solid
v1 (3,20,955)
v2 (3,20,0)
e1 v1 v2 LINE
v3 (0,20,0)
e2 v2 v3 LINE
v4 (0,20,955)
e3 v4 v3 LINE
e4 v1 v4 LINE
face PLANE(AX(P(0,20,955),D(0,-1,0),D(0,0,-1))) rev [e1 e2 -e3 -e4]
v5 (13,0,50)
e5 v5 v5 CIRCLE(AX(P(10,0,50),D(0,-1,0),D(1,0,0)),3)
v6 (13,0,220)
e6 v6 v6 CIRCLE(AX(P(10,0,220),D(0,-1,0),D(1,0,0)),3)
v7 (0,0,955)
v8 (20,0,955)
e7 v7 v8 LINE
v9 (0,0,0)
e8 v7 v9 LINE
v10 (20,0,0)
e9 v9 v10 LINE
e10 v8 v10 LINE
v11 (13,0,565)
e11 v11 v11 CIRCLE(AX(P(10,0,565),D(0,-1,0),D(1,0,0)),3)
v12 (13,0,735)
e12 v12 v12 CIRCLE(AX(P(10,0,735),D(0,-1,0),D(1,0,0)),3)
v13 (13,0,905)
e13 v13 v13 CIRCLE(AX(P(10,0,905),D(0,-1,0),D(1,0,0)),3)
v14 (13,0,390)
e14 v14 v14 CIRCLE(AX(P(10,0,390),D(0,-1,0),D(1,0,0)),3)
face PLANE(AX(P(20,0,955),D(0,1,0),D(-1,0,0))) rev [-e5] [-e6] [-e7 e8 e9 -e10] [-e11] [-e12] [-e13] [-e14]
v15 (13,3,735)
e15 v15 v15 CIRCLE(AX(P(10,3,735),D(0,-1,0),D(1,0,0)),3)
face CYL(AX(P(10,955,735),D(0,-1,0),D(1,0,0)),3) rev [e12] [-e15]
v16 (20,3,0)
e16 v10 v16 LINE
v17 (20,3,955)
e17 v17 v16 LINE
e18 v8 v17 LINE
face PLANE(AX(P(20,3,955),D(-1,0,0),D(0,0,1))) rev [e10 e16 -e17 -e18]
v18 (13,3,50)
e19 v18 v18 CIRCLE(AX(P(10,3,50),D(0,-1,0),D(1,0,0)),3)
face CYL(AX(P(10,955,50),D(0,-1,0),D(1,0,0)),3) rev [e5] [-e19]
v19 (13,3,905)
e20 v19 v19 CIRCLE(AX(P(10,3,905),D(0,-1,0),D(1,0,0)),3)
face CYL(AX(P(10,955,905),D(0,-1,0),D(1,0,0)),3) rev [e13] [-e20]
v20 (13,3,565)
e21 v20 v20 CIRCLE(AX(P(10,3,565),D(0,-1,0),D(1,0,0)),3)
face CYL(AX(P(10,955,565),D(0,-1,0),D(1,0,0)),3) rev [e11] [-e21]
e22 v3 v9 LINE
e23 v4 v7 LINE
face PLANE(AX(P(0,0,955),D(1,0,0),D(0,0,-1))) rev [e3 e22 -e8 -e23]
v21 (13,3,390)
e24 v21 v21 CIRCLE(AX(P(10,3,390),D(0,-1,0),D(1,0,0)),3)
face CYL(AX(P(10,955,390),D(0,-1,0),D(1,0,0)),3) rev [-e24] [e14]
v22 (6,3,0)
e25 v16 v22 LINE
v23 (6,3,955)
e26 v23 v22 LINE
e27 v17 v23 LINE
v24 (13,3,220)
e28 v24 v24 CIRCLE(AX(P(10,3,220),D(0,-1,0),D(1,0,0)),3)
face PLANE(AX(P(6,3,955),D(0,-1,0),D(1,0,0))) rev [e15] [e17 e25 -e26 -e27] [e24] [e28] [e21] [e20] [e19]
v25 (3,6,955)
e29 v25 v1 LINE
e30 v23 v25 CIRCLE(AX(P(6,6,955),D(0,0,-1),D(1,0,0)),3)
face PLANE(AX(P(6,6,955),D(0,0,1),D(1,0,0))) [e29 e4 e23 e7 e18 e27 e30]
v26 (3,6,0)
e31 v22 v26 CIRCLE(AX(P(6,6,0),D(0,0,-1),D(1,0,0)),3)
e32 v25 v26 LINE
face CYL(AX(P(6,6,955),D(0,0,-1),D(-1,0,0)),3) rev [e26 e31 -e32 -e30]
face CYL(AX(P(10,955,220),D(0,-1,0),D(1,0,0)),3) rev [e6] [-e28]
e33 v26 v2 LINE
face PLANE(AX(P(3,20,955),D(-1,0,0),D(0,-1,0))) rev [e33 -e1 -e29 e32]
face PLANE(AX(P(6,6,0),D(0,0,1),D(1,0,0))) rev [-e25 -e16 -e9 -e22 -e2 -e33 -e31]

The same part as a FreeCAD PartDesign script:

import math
import FreeCAD as App
import Part
import Sketcher
Q = App.Units.Quantity

doc = App.newDocument("Part")
body = doc.addObject("PartDesign::Body", "Body")

sketch1 = body.newObject("Sketcher::SketchObject", "Sketch")
sketch1.AttachmentSupport = (doc.getObject("XY_Plane"), [""])
sketch1.MapMode = "FlatFace"
sketch1.addGeometry(Part.LineSegment(App.Vector(0, 20, 0), App.Vector(0, 0, 0)), False)
sketch1.addGeometry(Part.LineSegment(App.Vector(0, 0, 0), App.Vector(20, 0, 0)), False)
sketch1.addGeometry(Part.LineSegment(App.Vector(20, 0, 0), App.Vector(20, 3, 0)), False)
sketch1.addGeometry(Part.LineSegment(App.Vector(20, 3, 0), App.Vector(6, 3, 0)), False)
sketch1.addGeometry(Part.ArcOfCircle(Part.Circle(App.Vector(6, 6, 0), App.Vector(0, 0, 1), 3), math.radians(180), math.radians(270)), False)
sketch1.addGeometry(Part.LineSegment(App.Vector(3, 6, 0), App.Vector(3, 20, 0)), False)
sketch1.addGeometry(Part.LineSegment(App.Vector(3, 20, 0), App.Vector(0, 20, 0)), False)
sketch1.addConstraint(Sketcher.Constraint("Coincident", 0, 2, 1, 1))
sketch1.addConstraint(Sketcher.Constraint("Coincident", 1, 2, 2, 1))
sketch1.addConstraint(Sketcher.Constraint("Coincident", 2, 2, 3, 1))
sketch1.addConstraint(Sketcher.Constraint("Tangent", 3, 2, 4, 2))
sketch1.addConstraint(Sketcher.Constraint("Tangent", 4, 1, 5, 1))
sketch1.addConstraint(Sketcher.Constraint("Coincident", 5, 2, 6, 1))
sketch1.addConstraint(Sketcher.Constraint("Coincident", 6, 2, 0, 1))
sketch1.addConstraint(Sketcher.Constraint("Vertical", 0))
sketch1.addConstraint(Sketcher.Constraint("Horizontal", 1))
sketch1.addConstraint(Sketcher.Constraint("Vertical", 2))
sketch1.addConstraint(Sketcher.Constraint("Horizontal", 3))
sketch1.addConstraint(Sketcher.Constraint("Vertical", 5))
sketch1.addConstraint(Sketcher.Constraint("Horizontal", 6))
sketch1.addConstraint(Sketcher.Constraint("Coincident", 0, 2, -1, 1))
sketch1.addConstraint(Sketcher.Constraint("Equal", 1, 0))
sketch1.addConstraint(Sketcher.Constraint("Equal", 6, 2))
sketch1.addConstraint(Sketcher.Constraint("Radius", 4, Q("3 mm")))
sketch1.addConstraint(Sketcher.Constraint("DistanceX", 1, 1, 1, 2, Q("20 mm")))
sketch1.addConstraint(Sketcher.Constraint("DistanceX", 3, 2, 3, 1, Q("14 mm")))
pad1 = body.newObject("PartDesign::Pad", "Pad")
pad1.Profile = sketch1
pad1.Length = 955

sketch2 = body.newObject("Sketcher::SketchObject", "Sketch001")
sketch2.AttachmentSupport = (doc.getObject("XZ_Plane"), [""])
sketch2.MapMode = "FlatFace"
sketch2.addGeometry(Part.Circle(App.Vector(10, 50, 0), App.Vector(0, 0, 1), 3), False)
sketch2.addGeometry(Part.Circle(App.Vector(10, 905, 0), App.Vector(0, 0, 1), 3), False)
sketch2.addGeometry(Part.Circle(App.Vector(10, 220, 0), App.Vector(0, 0, 1), 3), False)
sketch2.addGeometry(Part.Circle(App.Vector(10, 735, 0), App.Vector(0, 0, 1), 3), False)
sketch2.addGeometry(Part.Circle(App.Vector(10, 390, 0), App.Vector(0, 0, 1), 3), False)
sketch2.addGeometry(Part.Circle(App.Vector(10, 565, 0), App.Vector(0, 0, 1), 3), False)
sketch2.addConstraint(Sketcher.Constraint("Equal", 0, 1))
sketch2.addConstraint(Sketcher.Constraint("Equal", 1, 2))
sketch2.addConstraint(Sketcher.Constraint("Equal", 2, 3))
sketch2.addConstraint(Sketcher.Constraint("Equal", 3, 4))
sketch2.addConstraint(Sketcher.Constraint("Equal", 4, 5))
sketch2.addConstraint(Sketcher.Constraint("Vertical", 0, 3, 1, 3))
sketch2.addConstraint(Sketcher.Constraint("Vertical", 1, 3, 2, 3))
sketch2.addConstraint(Sketcher.Constraint("Vertical", 2, 3, 3, 3))
sketch2.addConstraint(Sketcher.Constraint("Vertical", 3, 3, 4, 3))
sketch2.addConstraint(Sketcher.Constraint("Vertical", 4, 3, 5, 3))
sketch2.addConstraint(Sketcher.Constraint("Diameter", 0, Q("6 mm")))
sketch2.addConstraint(Sketcher.Constraint("DistanceX", -1, 1, 0, 3, Q("10 mm")))
sketch2.addConstraint(Sketcher.Constraint("DistanceY", -1, 1, 0, 3, Q("50 mm")))
sketch2.addConstraint(Sketcher.Constraint("DistanceY", -1, 1, 1, 3, Q("905 mm")))
sketch2.addConstraint(Sketcher.Constraint("DistanceY", -1, 1, 2, 3, Q("220 mm")))
sketch2.addConstraint(Sketcher.Constraint("DistanceY", -1, 1, 3, 3, Q("735 mm")))
sketch2.addConstraint(Sketcher.Constraint("DistanceY", -1, 1, 4, 3, Q("390 mm")))
sketch2.addConstraint(Sketcher.Constraint("DistanceY", -1, 1, 5, 3, Q("565 mm")))
pocket1 = body.newObject("PartDesign::Pocket", "Pocket")
pocket1.Profile = sketch2
pocket1.Length = 955

doc.recompute()
